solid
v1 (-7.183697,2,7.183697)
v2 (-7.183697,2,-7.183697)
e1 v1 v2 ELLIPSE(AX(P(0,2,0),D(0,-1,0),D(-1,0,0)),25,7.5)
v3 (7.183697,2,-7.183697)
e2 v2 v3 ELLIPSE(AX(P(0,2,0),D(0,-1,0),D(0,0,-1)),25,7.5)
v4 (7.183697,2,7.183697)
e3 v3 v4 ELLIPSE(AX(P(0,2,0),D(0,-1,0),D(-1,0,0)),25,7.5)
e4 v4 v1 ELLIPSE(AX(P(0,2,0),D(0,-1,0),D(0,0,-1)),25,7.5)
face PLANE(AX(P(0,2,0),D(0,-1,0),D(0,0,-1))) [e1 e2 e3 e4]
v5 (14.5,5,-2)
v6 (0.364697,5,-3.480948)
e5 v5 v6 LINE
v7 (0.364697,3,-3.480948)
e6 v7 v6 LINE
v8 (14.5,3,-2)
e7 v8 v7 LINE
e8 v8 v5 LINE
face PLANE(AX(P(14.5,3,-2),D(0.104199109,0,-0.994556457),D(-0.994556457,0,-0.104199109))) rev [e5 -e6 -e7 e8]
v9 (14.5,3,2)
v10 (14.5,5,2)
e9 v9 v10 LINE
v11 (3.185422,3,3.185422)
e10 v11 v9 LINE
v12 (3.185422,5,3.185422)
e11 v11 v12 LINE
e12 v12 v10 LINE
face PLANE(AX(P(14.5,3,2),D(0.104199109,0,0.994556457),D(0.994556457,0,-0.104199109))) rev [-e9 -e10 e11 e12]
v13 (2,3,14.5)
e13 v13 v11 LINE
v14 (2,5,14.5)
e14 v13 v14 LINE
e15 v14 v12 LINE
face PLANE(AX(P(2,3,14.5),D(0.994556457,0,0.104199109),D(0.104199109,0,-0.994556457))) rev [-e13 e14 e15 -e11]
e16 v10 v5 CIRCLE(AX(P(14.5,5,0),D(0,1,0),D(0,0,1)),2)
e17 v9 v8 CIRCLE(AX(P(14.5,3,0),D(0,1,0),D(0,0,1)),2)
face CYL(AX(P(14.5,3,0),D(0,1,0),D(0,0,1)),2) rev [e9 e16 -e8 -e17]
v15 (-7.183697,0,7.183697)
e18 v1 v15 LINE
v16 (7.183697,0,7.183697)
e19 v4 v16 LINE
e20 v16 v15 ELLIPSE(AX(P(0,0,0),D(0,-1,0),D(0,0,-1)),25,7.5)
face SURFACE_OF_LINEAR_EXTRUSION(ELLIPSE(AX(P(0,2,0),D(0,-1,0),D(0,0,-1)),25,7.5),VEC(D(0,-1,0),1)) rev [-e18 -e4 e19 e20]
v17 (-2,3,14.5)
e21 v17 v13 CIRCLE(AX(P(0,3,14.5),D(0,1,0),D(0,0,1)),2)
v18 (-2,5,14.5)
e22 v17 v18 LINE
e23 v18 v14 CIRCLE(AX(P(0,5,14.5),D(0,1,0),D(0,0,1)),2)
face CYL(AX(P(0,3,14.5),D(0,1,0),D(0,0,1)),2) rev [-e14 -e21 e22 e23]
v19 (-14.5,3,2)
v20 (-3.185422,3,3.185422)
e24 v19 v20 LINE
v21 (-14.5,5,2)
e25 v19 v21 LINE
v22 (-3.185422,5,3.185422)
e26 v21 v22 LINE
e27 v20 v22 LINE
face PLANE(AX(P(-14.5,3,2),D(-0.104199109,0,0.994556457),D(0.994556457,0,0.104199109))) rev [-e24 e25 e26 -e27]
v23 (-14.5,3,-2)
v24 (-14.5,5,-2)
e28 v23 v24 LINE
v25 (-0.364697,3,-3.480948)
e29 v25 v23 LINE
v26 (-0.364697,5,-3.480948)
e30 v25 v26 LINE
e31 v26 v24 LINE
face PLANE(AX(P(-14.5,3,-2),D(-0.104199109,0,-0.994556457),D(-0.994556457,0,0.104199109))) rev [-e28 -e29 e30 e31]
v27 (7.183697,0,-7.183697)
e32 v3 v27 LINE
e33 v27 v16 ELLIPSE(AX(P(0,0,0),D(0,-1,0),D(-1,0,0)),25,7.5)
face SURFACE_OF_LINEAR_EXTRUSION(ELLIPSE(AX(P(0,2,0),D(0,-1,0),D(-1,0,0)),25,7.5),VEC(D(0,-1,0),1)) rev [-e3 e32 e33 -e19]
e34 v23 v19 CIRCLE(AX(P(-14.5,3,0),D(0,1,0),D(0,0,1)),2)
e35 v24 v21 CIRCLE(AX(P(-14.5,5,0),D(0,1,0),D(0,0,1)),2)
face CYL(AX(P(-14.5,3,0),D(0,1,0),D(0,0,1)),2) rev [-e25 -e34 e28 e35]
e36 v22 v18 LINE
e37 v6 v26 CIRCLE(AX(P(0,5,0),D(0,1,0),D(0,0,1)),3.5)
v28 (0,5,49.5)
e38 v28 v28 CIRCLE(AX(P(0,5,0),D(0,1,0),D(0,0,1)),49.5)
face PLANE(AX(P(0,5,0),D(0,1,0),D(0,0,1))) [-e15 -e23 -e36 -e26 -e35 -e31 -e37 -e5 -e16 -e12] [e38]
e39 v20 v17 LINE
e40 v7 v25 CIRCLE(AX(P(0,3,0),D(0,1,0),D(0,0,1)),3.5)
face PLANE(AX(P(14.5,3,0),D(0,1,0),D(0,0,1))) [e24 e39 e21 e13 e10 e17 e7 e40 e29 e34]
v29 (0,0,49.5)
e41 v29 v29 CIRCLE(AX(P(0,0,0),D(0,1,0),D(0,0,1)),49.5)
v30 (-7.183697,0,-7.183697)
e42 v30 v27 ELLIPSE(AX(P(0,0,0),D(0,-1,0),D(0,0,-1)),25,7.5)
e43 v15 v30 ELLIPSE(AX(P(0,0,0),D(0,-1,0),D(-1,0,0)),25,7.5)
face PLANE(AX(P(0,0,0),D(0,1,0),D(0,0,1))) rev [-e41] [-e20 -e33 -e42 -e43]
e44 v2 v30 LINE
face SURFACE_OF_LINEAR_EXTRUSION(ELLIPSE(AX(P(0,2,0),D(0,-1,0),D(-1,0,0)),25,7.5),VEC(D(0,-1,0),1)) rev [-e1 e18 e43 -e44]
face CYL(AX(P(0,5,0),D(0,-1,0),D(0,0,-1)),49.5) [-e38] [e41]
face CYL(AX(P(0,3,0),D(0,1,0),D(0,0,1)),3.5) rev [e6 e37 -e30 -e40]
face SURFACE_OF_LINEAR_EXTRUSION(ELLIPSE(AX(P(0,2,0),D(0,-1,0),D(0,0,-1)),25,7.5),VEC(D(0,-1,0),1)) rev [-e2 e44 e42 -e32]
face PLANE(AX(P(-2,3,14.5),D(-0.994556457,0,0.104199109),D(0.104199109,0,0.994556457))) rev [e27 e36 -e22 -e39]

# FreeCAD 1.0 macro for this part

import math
import FreeCAD as App
import Part
import Sketcher

V = App.Vector
Q = App.Units.Quantity

doc = App.newDocument("Part")
body = doc.addObject("PartDesign::Body", "Body")

# Sketch on XZ plane
sketch1 = doc.addObject("Sketcher::SketchObject", "Sketch")
body.addObject(sketch1)
sketch1.AttachmentSupport = (doc.XZ_Plane, [""])
sketch1.MapMode = "FlatFace"
sketch1.addGeometry(Part.Circle(V(0, 0, 0), V(0, 0, 1), 49.5), False)
sketch1.addConstraint([
    Sketcher.Constraint("Coincident", 0, 3, -1, 1),
    Sketcher.Constraint("Diameter", 0, Q("99 mm")),
])
pad1 = doc.addObject("PartDesign::Pad", "Pad")
body.addObject(pad1)
pad1.Profile = sketch1
pad1.Length = 5
pad1.Reversed = True

# Sketch on XZ plane
sketch2 = doc.addObject("Sketcher::SketchObject", "Sketch001")
body.addObject(sketch2)
sketch2.AttachmentSupport = (doc.XZ_Plane, [""])
sketch2.MapMode = "FlatFace"
sketch2.AttachmentOffset = App.Placement(V(0, 0, -5), App.Rotation())
sketch2.addGeometry([
    Part.LineSegment(V(14.5, -2, 0), V(0.364697, -3.480948, 0)),  # 0
    Part.ArcOfCircle(Part.Circle(V(0, 0, 0), V(0, 0, 1), 3.5), math.radians(-95.981026), math.radians(-84.018974)),  # 1
    Part.LineSegment(V(-0.364697, -3.480948, 0), V(-14.5, -2, 0)),  # 2
    Part.ArcOfCircle(Part.Circle(V(-14.5, 0, 0), V(0, 0, 1), 2), math.radians(90), math.radians(270)),  # 3
    Part.LineSegment(V(-14.5, 2, 0), V(-3.185422, 3.185422, 0)),  # 4
    Part.LineSegment(V(-3.185422, 3.185422, 0), V(-2, 14.5, 0)),  # 5
    Part.ArcOfCircle(Part.Circle(V(0, 14.5, 0), V(0, 0, 1), 2), math.radians(0), math.radians(180)),  # 6
    Part.LineSegment(V(2, 14.5, 0), V(3.185422, 3.185422, 0)),  # 7
    Part.LineSegment(V(3.185422, 3.185422, 0), V(14.5, 2, 0)),  # 8
    Part.ArcOfCircle(Part.Circle(V(14.5, 0, 0), V(0, 0, 1), 2), math.radians(-90), math.radians(90)),  # 9
], False)
sketch2.addConstraint([
    Sketcher.Constraint("Tangent", 0, 2, 1, 2),
    Sketcher.Constraint("Tangent", 1, 1, 2, 1),
    Sketcher.Constraint("Coincident", 2, 2, 3, 2),
    Sketcher.Constraint("Coincident", 3, 1, 4, 1),
    Sketcher.Constraint("Coincident", 4, 2, 5, 1),
    Sketcher.Constraint("Coincident", 5, 2, 6, 2),
    Sketcher.Constraint("Coincident", 6, 1, 7, 1),
    Sketcher.Constraint("Coincident", 7, 2, 8, 1),
    Sketcher.Constraint("Coincident", 8, 2, 9, 2),
    Sketcher.Constraint("Coincident", 9, 1, 0, 1),
    Sketcher.Constraint("Coincident", 1, 3, -1, 1),
    Sketcher.Constraint("Equal", 3, 6),
    Sketcher.Constraint("Equal", 6, 9),
    Sketcher.Constraint("Symmetric", 3, 3, 9, 3, -1, 1),
    Sketcher.Constraint("Symmetric", 5, 2, 6, 1, -2),
    Sketcher.Constraint("Symmetric", 4, 2, 7, 2, -2),
    Sketcher.Constraint("Symmetric", 3, 1, 8, 2, -2),
    Sketcher.Constraint("Parallel", 0, 4),
    Sketcher.Constraint("Perpendicular", 2, 5),
    Sketcher.Constraint("Perpendicular", 4, 7),
    Sketcher.Constraint("Horizontal", 6, 3, 5, 2),
    Sketcher.Constraint("Vertical", 3, 3, 2, 2),
    Sketcher.Constraint("Vertical", 2, 2, 3, 1),
    Sketcher.Constraint("Equal", 4, 5),
    Sketcher.Constraint("Radius", 3, Q("2 mm")),
    Sketcher.Constraint("Radius", 1, Q("3.5 mm")),
    Sketcher.Constraint("DistanceX", 3, 3, 9, 3, Q("29 mm")),
])
pocket1 = doc.addObject("PartDesign::Pocket", "Pocket")
body.addObject(pocket1)
pocket1.Profile = sketch2
pocket1.Length = 2
pocket1.Reversed = True

# Sketch on XZ plane
sketch3 = doc.addObject("Sketcher::SketchObject", "Sketch002")
body.addObject(sketch3)
sketch3.AttachmentSupport = (doc.XZ_Plane, [""])
sketch3.MapMode = "FlatFace"
sketch3.addGeometry([
    Part.BSplineCurve([V(7.183697, 7.183697, 0), V(0, 87.002554, 0), V(-7.183697, 7.183697, 0)], [3, 3], [1.862253121, 4.420932186], False, 2, [1, 0.287347886, 1], False),
    Part.BSplineCurve([V(-7.183697, 7.183697, 0), V(-87.002554, 0, 0), V(-7.183697, -7.183697, 0)], [3, 3], [5.003845775, 7.562524839], False, 2, [1, 0.287347886, 1], False),
    Part.BSplineCurve([V(-7.183697, -7.183697, 0), V(0, -87.002554, 0), V(7.183697, -7.183697, 0)], [3, 3], [5.003845775, 7.562524839], False, 2, [1, 0.287347886, 1], False),
    Part.BSplineCurve([V(7.183697, -7.183697, 0), V(87.002554, 0, 0), V(7.183697, 7.183697, 0)], [3, 3], [1.862253121, 4.420932186], False, 2, [1, 0.287347886, 1], False),
], False)
sketch3.addConstraint([
    Sketcher.Constraint("Block", 0),
    Sketcher.Constraint("Block", 1),
    Sketcher.Constraint("Block", 2),
    Sketcher.Constraint("Block", 3),
])
pocket2 = doc.addObject("PartDesign::Pocket", "Pocket001")
body.addObject(pocket2)
pocket2.Profile = sketch3
pocket2.Length = 2

doc.recompute()
